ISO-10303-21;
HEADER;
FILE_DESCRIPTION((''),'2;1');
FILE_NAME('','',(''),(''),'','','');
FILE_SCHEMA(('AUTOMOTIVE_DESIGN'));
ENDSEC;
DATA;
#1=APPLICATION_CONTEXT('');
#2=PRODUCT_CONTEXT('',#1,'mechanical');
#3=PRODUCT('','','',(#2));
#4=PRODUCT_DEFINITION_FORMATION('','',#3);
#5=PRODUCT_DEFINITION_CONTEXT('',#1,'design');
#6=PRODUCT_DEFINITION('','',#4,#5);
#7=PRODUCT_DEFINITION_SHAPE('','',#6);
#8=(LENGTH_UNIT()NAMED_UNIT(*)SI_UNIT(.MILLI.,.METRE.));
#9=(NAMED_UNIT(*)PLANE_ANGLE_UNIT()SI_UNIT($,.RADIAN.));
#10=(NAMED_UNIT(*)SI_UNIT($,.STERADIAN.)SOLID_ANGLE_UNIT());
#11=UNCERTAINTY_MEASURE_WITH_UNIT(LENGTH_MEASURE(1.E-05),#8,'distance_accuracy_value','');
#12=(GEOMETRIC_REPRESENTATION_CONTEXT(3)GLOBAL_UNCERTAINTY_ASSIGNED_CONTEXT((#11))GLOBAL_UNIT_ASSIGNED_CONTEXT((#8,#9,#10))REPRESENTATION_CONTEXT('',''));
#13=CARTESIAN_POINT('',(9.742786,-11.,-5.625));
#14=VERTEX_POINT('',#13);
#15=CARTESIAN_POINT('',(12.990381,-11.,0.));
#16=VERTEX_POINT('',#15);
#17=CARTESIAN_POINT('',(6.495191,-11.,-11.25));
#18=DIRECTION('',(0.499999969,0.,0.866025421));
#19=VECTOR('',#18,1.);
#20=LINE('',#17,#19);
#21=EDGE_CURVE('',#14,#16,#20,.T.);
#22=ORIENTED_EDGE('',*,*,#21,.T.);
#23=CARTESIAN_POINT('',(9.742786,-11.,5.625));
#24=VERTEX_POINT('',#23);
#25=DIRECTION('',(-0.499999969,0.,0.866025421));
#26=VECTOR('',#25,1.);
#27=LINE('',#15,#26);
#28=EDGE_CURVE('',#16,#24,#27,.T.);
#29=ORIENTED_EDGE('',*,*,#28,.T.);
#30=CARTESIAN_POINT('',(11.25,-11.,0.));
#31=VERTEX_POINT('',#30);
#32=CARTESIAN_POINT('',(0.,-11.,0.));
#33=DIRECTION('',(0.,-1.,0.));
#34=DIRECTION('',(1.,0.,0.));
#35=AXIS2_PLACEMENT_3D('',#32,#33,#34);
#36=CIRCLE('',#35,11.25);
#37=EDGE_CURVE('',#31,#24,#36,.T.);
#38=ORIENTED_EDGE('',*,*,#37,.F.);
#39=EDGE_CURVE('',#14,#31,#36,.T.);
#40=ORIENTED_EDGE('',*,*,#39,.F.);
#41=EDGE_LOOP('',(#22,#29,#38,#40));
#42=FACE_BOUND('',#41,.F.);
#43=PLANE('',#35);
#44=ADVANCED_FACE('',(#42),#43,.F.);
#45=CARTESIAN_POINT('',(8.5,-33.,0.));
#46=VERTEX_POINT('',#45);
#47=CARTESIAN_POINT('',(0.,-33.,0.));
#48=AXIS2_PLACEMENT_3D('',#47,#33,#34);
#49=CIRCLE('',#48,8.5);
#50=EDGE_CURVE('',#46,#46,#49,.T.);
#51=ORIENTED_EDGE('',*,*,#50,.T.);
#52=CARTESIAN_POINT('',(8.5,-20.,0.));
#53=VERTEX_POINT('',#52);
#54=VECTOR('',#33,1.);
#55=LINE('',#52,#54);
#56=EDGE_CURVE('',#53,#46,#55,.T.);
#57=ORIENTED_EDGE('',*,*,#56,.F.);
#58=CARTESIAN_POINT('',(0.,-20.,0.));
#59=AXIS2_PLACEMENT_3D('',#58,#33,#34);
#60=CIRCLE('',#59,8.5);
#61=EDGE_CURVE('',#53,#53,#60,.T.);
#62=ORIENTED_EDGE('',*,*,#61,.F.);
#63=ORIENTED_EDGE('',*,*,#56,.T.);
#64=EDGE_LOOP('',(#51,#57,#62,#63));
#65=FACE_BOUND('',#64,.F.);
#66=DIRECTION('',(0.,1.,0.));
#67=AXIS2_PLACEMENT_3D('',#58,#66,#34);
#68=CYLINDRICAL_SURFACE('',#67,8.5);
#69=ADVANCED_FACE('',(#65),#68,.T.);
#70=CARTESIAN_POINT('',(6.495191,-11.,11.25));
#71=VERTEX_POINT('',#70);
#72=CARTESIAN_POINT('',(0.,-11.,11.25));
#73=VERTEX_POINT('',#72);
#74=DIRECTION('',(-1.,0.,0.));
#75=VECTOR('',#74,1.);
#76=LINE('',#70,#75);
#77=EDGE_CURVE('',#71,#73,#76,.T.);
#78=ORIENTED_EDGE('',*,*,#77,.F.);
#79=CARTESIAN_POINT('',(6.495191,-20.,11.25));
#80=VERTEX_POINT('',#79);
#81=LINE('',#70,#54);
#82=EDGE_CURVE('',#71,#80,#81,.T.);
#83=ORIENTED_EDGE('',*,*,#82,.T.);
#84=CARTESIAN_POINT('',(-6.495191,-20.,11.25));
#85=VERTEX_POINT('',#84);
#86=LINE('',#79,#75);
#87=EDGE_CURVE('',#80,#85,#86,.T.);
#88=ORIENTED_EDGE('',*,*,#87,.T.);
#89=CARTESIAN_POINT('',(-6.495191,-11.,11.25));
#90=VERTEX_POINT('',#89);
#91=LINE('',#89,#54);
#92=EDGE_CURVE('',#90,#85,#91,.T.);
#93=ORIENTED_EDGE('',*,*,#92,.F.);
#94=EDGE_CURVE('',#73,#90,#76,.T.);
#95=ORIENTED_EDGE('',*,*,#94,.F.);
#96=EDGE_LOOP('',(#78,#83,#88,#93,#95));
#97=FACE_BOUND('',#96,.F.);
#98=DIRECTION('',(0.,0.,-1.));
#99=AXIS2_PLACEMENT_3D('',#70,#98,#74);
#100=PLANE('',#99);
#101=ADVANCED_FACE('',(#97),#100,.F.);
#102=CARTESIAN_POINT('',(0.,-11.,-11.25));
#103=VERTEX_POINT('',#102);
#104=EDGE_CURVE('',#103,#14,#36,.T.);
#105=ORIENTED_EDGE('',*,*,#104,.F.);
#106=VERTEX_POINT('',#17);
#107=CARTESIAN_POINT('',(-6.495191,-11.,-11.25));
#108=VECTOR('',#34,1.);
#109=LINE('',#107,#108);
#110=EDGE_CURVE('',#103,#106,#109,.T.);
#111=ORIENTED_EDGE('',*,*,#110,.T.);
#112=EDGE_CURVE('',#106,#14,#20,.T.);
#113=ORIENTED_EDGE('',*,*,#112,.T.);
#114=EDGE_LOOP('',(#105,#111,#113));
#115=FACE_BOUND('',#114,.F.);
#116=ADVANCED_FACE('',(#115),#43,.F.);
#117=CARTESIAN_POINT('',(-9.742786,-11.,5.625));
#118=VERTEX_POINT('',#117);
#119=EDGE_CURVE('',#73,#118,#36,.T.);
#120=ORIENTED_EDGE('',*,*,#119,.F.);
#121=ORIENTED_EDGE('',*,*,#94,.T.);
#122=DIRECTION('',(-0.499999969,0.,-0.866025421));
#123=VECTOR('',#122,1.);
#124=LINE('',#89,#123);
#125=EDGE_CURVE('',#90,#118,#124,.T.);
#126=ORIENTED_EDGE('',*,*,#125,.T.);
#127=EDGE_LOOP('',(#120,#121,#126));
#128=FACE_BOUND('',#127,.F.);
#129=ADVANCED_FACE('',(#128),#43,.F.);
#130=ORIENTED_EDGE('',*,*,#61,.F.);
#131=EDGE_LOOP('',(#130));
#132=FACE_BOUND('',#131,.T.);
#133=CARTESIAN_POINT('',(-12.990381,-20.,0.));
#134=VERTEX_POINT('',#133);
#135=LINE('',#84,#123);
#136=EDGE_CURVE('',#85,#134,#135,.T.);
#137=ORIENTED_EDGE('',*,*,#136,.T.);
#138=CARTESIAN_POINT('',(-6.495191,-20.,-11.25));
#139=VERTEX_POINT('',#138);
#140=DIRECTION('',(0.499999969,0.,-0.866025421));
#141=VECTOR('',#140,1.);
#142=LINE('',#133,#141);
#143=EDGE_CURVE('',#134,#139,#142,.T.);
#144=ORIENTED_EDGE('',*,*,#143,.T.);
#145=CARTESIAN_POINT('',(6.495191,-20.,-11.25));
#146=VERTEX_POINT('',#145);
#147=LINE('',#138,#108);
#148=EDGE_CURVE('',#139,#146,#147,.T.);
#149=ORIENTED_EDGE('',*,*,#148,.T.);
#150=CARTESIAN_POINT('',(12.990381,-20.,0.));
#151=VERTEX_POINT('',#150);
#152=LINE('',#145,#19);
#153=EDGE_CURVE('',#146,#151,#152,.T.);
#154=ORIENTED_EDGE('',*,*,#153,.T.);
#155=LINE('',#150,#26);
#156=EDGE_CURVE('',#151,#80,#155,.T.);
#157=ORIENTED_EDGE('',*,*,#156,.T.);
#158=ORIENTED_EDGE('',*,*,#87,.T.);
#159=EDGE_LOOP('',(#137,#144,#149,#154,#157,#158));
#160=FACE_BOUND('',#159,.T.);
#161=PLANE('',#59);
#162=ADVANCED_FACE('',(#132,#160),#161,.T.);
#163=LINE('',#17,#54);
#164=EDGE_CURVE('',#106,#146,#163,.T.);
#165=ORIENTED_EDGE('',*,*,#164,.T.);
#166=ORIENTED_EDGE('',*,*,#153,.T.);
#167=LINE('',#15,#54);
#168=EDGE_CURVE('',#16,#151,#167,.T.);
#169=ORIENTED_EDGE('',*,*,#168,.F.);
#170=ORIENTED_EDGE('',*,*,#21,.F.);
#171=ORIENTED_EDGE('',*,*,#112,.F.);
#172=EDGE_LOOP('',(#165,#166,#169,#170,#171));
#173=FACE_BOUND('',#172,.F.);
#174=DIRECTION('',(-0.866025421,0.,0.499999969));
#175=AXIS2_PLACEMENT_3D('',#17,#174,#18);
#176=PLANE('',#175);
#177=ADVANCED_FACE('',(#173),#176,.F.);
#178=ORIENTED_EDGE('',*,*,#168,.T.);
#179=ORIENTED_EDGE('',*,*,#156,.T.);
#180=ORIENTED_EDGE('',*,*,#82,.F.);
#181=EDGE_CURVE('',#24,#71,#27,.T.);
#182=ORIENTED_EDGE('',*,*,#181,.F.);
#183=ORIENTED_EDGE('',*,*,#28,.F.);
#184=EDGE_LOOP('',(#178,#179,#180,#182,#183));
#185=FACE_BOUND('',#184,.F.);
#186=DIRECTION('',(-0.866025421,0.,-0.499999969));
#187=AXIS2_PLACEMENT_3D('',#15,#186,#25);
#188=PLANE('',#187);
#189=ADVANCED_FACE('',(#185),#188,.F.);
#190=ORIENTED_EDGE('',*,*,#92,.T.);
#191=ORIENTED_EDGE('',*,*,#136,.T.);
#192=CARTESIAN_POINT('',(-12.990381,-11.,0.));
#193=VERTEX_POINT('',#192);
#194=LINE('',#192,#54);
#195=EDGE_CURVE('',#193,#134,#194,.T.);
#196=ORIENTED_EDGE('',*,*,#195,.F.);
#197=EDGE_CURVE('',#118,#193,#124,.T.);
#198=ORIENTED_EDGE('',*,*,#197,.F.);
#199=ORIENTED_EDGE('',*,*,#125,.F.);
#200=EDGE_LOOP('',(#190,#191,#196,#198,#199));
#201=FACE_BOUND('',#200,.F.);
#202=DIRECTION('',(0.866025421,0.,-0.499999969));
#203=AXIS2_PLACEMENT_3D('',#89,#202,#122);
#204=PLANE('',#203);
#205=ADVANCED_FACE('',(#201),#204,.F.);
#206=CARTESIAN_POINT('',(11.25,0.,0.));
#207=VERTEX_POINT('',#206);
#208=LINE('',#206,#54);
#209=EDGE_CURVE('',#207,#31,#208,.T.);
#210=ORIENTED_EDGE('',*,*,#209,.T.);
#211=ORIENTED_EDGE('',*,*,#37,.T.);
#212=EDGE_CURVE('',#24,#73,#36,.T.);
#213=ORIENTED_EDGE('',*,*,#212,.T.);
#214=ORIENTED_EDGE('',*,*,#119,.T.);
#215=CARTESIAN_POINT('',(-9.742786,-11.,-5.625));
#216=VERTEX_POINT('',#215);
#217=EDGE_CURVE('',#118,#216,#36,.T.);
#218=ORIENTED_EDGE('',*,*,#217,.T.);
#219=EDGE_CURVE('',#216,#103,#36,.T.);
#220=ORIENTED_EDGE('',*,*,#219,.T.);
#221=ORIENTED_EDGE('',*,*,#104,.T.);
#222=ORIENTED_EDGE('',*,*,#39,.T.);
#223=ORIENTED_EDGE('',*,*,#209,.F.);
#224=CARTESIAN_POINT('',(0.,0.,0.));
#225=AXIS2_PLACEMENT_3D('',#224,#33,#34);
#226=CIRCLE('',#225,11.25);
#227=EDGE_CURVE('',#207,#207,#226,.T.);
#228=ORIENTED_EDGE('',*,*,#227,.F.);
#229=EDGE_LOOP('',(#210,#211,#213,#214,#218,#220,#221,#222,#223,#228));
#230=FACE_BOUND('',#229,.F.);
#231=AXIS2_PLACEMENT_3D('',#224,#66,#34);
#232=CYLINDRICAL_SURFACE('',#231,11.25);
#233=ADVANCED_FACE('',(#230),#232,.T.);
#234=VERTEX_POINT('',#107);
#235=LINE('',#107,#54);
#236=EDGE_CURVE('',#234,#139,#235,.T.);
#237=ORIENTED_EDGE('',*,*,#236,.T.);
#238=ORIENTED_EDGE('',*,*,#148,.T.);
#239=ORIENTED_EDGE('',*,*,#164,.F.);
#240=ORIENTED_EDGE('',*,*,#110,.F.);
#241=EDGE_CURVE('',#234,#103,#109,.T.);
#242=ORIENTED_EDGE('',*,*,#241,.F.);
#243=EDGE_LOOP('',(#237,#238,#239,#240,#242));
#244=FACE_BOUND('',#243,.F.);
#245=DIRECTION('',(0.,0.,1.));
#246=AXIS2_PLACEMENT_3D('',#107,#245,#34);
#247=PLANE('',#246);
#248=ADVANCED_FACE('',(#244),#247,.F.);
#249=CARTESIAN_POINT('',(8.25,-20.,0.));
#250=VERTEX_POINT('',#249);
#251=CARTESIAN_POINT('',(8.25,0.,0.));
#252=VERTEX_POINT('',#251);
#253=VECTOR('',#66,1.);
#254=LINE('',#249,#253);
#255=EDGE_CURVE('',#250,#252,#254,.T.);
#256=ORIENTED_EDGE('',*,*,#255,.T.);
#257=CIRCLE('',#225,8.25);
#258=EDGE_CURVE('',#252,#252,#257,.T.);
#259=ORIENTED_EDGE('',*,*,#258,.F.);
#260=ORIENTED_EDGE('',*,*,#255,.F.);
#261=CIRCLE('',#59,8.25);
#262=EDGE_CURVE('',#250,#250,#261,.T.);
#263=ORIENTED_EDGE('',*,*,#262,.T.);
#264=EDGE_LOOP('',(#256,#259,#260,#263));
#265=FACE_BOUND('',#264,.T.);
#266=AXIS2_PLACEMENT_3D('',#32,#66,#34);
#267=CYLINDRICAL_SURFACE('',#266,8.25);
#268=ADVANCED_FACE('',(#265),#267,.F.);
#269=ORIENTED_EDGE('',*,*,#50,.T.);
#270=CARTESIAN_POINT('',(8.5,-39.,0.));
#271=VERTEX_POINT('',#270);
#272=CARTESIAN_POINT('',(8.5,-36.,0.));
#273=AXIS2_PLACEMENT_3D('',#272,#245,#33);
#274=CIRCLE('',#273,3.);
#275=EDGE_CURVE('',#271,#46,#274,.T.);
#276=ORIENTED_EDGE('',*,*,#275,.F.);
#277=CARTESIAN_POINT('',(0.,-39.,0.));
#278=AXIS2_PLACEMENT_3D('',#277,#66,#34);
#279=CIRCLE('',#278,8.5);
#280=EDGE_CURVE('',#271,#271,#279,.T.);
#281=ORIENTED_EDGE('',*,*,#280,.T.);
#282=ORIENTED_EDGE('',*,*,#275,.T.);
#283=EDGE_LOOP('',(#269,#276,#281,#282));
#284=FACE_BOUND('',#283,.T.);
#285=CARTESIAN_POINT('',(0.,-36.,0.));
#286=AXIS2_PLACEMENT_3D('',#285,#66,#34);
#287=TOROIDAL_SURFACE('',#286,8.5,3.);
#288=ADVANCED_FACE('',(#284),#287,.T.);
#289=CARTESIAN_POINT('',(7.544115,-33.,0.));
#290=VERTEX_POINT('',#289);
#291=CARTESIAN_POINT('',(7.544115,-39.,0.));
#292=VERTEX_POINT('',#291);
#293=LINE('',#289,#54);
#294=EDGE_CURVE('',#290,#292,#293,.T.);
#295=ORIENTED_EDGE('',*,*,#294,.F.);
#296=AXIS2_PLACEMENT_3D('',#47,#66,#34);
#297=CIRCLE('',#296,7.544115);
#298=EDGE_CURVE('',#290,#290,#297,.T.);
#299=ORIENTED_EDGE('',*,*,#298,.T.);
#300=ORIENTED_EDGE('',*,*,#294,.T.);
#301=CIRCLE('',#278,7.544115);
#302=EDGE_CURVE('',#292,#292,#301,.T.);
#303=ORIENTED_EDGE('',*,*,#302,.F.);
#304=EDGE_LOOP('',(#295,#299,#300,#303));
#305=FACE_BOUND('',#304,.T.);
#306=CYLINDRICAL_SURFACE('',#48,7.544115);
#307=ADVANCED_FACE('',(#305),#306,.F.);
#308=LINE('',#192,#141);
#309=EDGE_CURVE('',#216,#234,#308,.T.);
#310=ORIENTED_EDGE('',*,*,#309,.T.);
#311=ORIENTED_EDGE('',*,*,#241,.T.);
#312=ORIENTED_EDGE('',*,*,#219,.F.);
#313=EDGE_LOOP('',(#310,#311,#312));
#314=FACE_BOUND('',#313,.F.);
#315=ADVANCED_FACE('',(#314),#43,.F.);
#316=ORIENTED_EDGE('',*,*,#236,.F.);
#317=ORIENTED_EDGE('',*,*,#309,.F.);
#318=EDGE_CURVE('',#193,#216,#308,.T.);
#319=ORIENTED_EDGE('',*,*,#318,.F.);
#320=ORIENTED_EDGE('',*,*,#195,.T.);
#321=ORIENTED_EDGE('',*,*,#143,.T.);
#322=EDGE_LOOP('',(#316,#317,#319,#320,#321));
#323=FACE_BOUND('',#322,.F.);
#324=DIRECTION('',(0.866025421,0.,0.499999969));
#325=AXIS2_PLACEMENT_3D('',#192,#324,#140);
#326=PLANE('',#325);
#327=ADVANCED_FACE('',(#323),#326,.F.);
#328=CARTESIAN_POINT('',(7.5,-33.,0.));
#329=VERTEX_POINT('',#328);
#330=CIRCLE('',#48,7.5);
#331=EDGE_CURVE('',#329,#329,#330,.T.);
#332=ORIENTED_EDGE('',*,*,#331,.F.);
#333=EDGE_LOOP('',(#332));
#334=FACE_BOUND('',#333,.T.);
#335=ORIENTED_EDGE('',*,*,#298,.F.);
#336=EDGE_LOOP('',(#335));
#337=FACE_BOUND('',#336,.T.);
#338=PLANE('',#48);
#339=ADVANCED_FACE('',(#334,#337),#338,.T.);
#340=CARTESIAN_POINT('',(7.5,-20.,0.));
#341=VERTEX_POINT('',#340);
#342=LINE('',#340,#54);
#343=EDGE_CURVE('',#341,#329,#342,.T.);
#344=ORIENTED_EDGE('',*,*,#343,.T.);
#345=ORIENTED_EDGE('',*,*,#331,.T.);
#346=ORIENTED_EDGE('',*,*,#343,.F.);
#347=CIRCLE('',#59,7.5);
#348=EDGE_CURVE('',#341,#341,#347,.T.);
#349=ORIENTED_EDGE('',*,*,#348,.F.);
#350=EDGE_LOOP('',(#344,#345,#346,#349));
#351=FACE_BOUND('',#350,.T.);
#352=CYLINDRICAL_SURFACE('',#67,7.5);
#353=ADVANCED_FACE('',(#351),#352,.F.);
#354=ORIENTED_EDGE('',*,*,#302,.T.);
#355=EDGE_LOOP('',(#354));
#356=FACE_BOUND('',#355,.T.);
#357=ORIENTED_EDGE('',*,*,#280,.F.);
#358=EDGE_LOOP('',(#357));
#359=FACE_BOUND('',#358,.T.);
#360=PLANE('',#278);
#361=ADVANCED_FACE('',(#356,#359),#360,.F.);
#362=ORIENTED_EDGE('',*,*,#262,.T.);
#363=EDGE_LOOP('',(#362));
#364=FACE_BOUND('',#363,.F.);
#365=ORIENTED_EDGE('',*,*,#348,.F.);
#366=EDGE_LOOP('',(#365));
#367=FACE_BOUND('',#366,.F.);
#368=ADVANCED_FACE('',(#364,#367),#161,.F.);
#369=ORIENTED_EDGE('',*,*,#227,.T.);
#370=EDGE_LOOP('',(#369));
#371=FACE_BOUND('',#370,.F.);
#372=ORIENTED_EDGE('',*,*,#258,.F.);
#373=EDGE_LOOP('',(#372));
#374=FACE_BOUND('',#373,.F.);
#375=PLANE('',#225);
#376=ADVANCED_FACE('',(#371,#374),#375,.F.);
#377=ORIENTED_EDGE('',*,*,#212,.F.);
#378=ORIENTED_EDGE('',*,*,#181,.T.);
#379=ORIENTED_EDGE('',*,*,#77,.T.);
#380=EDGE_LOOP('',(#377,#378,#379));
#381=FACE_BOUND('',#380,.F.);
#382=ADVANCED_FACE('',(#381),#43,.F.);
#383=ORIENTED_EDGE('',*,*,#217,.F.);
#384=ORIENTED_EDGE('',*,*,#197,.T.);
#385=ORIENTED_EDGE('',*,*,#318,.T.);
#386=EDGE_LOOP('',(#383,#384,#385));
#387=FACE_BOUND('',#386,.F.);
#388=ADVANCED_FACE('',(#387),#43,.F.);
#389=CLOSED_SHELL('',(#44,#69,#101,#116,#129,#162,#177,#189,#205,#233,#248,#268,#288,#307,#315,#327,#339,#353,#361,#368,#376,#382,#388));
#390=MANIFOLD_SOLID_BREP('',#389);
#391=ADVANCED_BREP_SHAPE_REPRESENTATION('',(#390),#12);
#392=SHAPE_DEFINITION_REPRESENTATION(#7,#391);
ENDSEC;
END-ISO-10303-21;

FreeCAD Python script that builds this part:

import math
import FreeCAD as App
import Part
import Sketcher
Q = App.Units.Quantity

doc = App.newDocument("Part")
body = doc.addObject("PartDesign::Body", "Body")

sketch1 = body.newObject("Sketcher::SketchObject", "Sketch")
sketch1.AttachmentSupport = (doc.getObject("XZ_Plane"), [""])
sketch1.MapMode = "FlatFace"
sketch1.addGeometry([
    Part.Circle(App.Vector(0, 0, 0), App.Vector(0, 0, 1), 11.25),
    Part.Circle(App.Vector(0, 0, 0), App.Vector(0, 0, 1), 8.25),
], False)
sketch1.addConstraint([
    Sketcher.Constraint("Coincident", 0, 3, -1, 1),
    Sketcher.Constraint("Coincident", 1, 3, -1, 1),
    Sketcher.Constraint("Diameter", 0, 22.5),
    Sketcher.Constraint("Diameter", 1, 16.5),
])
pad1 = body.newObject("PartDesign::Pad", "Pad")
pad1.Profile = sketch1
pad1.Length = 11

sketch2 = body.newObject("Sketcher::SketchObject", "Sketch001")
sketch2.AttachmentSupport = (doc.getObject("XZ_Plane"), [""])
sketch2.MapMode = "FlatFace"
sketch2.AttachmentOffset = App.Placement(App.Vector(0, 0, 11), App.Rotation())
sketch2.addGeometry([
    Part.LineSegment(App.Vector(6.495191, 11.25, 0), App.Vector(-6.495191, 11.25, 0)),
    Part.LineSegment(App.Vector(-6.495191, 11.25, 0), App.Vector(-12.990381, 0, 0)),
    Part.LineSegment(App.Vector(-12.990381, 0, 0), App.Vector(-6.495191, -11.25, 0)),
    Part.LineSegment(App.Vector(-6.495191, -11.25, 0), App.Vector(6.495191, -11.25, 0)),
    Part.LineSegment(App.Vector(6.495191, -11.25, 0), App.Vector(12.990381, 0, 0)),
    Part.LineSegment(App.Vector(12.990381, 0, 0), App.Vector(6.495191, 11.25, 0)),
    Part.Circle(App.Vector(0, 0, 0), App.Vector(0, 0, 1), 8.25),
], False)
sketch2.addConstraint([
    Sketcher.Constraint("Coincident", 0, 2, 1, 1),
    Sketcher.Constraint("Coincident", 1, 2, 2, 1),
    Sketcher.Constraint("Coincident", 2, 2, 3, 1),
    Sketcher.Constraint("Coincident", 3, 2, 4, 1),
    Sketcher.Constraint("Coincident", 4, 2, 5, 1),
    Sketcher.Constraint("Coincident", 5, 2, 0, 1),
    Sketcher.Constraint("Horizontal", 0),
    Sketcher.Constraint("Horizontal", 3),
    Sketcher.Constraint("Coincident", 6, 3, -1, 1),
    Sketcher.Constraint("Symmetric", 0, 2, 3, 2, -1, 1),
    Sketcher.Constraint("Symmetric", 1, 2, 4, 2, -1, 1),
    Sketcher.Constraint("PointOnObject", 1, 2, -1),
    Sketcher.Constraint("Parallel", 2, 5),
    Sketcher.Constraint("Vertical", 0, 2, 2, 2),
    Sketcher.Constraint("Diameter", 6, 16.5),
    Sketcher.Constraint("Angle", 1, Q("-119.999998 deg")),
    Sketcher.Constraint("DistanceY", 2, 2, 0, 2, 22.5),
    Sketcher.Constraint("DistanceX", 0, 2, 0, 1, 12.990382),
])
pad2 = body.newObject("PartDesign::Pad", "Pad001")
pad2.Profile = sketch2
pad2.Length = 9

sketch3 = body.newObject("Sketcher::SketchObject", "Sketch002")
sketch3.AttachmentSupport = (doc.getObject("XZ_Plane"), [""])
sketch3.MapMode = "FlatFace"
sketch3.AttachmentOffset = App.Placement(App.Vector(0, 0, 20), App.Rotation())
sketch3.addGeometry([
    Part.Circle(App.Vector(0, 0, 0), App.Vector(0, 0, 1), 8.5),
    Part.Circle(App.Vector(0, 0, 0), App.Vector(0, 0, 1), 7.5),
], False)
sketch3.addConstraint([
    Sketcher.Constraint("Coincident", 0, 3, -1, 1),
    Sketcher.Constraint("Coincident", 1, 3, -1, 1),
    Sketcher.Constraint("Diameter", 0, 17.0),
    Sketcher.Constraint("Diameter", 1, 15.0),
])
pad3 = body.newObject("PartDesign::Pad", "Pad002")
pad3.Profile = sketch3
pad3.Length = 13

sketch4 = body.newObject("Sketcher::SketchObject", "Sketch003")
sketch4.AttachmentSupport = (doc.getObject("XY_Plane"), [""])
sketch4.MapMode = "FlatFace"
sketch4.addGeometry([
    Part.LineSegment(App.Vector(7.544115, -39, 0), App.Vector(8.5, -39, 0)),
    Part.ArcOfCircle(Part.Circle(App.Vector(8.5, -36, 0), App.Vector(0, 0, 1), 3), math.radians(-90), math.radians(90)),
    Part.LineSegment(App.Vector(8.5, -33, 0), App.Vector(7.544115, -33, 0)),
    Part.LineSegment(App.Vector(7.544115, -33, 0), App.Vector(7.544115, -39, 0)),
], False)
sketch4.addConstraint([
    Sketcher.Constraint("Tangent", 0, 2, 1, 1),
    Sketcher.Constraint("Tangent", 1, 2, 2, 1),
    Sketcher.Constraint("Coincident", 2, 2, 3, 1),
    Sketcher.Constraint("Coincident", 3, 2, 0, 1),
    Sketcher.Constraint("Horizontal", 0),
    Sketcher.Constraint("Horizontal", 2),
    Sketcher.Constraint("Vertical", 3),
    Sketcher.Constraint("Radius", 1, 3.0),
    Sketcher.Constraint("DistanceY", 1, 3, -1, 1, 36.0),
    Sketcher.Constraint("DistanceX", -1, 1, 1, 3, 8.5),
    Sketcher.Constraint("DistanceX", 0, 1, 0, 2, 0.955885),
])
revolution = body.newObject("PartDesign::Revolution", "Revolution")
revolution.Profile = sketch4
revolution.ReferenceAxis = (sketch4, ["V_Axis"])
revolution.Angle = 360

doc.recompute()
